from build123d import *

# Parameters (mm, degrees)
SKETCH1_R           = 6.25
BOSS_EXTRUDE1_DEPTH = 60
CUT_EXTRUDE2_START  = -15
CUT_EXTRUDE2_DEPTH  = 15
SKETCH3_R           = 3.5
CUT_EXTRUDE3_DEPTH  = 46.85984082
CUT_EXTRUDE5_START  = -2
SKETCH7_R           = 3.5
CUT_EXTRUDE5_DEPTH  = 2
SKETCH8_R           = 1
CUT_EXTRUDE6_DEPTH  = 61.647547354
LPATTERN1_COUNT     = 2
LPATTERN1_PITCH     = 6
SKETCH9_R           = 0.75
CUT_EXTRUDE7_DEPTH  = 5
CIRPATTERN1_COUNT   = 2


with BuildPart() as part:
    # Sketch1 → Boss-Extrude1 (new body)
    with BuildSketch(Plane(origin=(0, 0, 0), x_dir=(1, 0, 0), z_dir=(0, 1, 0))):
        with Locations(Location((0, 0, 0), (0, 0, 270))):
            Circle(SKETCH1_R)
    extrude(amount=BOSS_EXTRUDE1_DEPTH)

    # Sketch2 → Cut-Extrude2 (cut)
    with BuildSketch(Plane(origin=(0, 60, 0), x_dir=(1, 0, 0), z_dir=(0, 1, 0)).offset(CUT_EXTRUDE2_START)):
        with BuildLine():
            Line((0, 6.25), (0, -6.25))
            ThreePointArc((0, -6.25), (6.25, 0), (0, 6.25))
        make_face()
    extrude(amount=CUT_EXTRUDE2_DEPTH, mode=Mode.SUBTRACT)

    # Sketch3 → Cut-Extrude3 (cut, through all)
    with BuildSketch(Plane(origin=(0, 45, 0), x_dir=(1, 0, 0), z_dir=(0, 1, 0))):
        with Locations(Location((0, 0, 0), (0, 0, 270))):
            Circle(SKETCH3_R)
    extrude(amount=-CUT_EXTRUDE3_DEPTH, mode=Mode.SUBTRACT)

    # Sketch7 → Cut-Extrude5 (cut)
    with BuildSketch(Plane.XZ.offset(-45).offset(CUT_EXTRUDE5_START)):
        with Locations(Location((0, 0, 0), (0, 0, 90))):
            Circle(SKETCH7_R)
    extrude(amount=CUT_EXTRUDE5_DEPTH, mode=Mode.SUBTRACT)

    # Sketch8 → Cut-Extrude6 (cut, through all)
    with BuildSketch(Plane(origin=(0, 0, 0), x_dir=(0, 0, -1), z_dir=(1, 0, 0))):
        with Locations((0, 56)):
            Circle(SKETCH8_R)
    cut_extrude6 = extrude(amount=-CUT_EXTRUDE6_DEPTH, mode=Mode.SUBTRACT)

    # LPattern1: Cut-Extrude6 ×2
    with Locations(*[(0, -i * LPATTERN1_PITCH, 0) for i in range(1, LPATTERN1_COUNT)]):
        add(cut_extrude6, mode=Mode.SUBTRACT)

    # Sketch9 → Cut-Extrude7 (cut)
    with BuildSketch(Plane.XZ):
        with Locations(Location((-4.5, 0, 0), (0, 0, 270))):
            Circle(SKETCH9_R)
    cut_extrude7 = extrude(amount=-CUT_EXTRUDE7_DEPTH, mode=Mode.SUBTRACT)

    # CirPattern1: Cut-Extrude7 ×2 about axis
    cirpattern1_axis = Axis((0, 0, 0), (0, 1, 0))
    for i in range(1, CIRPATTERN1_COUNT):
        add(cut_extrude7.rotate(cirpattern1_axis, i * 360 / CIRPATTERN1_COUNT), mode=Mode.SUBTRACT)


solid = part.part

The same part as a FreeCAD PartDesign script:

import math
import FreeCAD as App
import Part
import Sketcher

V = App.Vector
Q = App.Units.Quantity

doc = App.newDocument("Part")
body = doc.addObject("PartDesign::Body", "Body")

# Sketch on XZ plane
sketch1 = body.newObject("Sketcher::SketchObject", "Sketch")
sketch1.AttachmentSupport = (doc.getObject("XZ_Plane"), [""])
sketch1.MapMode = "FlatFace"
sketch1.addGeometry(Part.Circle(V(0, 0, 0), V(0, 0, 1), 6), False)
sketch1.addConstraint([
    Sketcher.Constraint("Coincident", 0, 3, -1, 1),
    Sketcher.Constraint("Diameter", 0, Q("12.5 mm")),
])
pad1 = body.newObject("PartDesign::Pad", "Pad")
pad1.Profile = sketch1
pad1.Length = 60
pad1.Reversed = True

# Sketch on XZ plane
sketch2 = body.newObject("Sketcher::SketchObject", "Sketch001")
sketch2.AttachmentSupport = (doc.getObject("XZ_Plane"), [""])
sketch2.MapMode = "FlatFace"
sketch2.AttachmentOffset = App.Placement(V(0, 0, -45), App.Rotation())
sketch2.addGeometry([
    Part.LineSegment(V(0, -6, 0), V(0, 6, 0)),
    Part.ArcOfCircle(Part.Circle(V(0, 0, 0), V(0, 0, 1), 6), math.radians(-90), math.radians(90)),
], False)
sketch2.addConstraint([
    Sketcher.Constraint("Coincident", 0, 1, 1, 1),
    Sketcher.Constraint("Coincident", 1, 2, 0, 2),
    Sketcher.Constraint("Vertical", 0),
    Sketcher.Constraint("Coincident", 1, 3, -1, 1),
    Sketcher.Constraint("PointOnObject", 0, 1, -2),
    Sketcher.Constraint("Radius", 1, Q("6.25 mm")),
])
pocket1 = body.newObject("PartDesign::Pocket", "Pocket")
pocket1.Profile = sketch2
pocket1.Length = 15

# Sketch on XZ plane
sketch3 = body.newObject("Sketcher::SketchObject", "Sketch002")
sketch3.AttachmentSupport = (doc.getObject("XZ_Plane"), [""])
sketch3.MapMode = "FlatFace"
sketch3.AttachmentOffset = App.Placement(V(0, 0, -45), App.Rotation())
sketch3.addGeometry(Part.Circle(V(0, 0, 0), V(0, 0, 1), 3.5), False)
sketch3.addConstraint([
    Sketcher.Constraint("Coincident", 0, 3, -1, 1),
    Sketcher.Constraint("Diameter", 0, Q("7 mm")),
])
pocket2 = body.newObject("PartDesign::Pocket", "Pocket001")
pocket2.Profile = sketch3
pocket2.Type = "ThroughAll"
pocket2.Reversed = True

# Sketch on XZ plane
sketch4 = body.newObject("Sketcher::SketchObject", "Sketch003")
sketch4.AttachmentSupport = (doc.getObject("XZ_Plane"), [""])
sketch4.MapMode = "FlatFace"
sketch4.AttachmentOffset = App.Placement(V(0, 0, -47), App.Rotation())
sketch4.addGeometry(Part.Circle(V(0, 0, 0), V(0, 0, 1), 3.5), False)
sketch4.addConstraint([
    Sketcher.Constraint("Coincident", 0, 3, -1, 1),
    Sketcher.Constraint("Diameter", 0, Q("7 mm")),
])
pocket3 = body.newObject("PartDesign::Pocket", "Pocket002")
pocket3.Profile = sketch4
pocket3.Length = 2
pocket3.Reversed = True

# Sketch on YZ plane
sketch5 = body.newObject("Sketcher::SketchObject", "Sketch004")
sketch5.AttachmentSupport = (doc.getObject("YZ_Plane"), [""])
sketch5.MapMode = "FlatFace"
sketch5.addGeometry(Part.Circle(V(56, 0, 0), V(0, 0, 1), 1), False)
sketch5.addConstraint([
    Sketcher.Constraint("PointOnObject", 0, 3, -1),
    Sketcher.Constraint("Diameter", 0, Q("2 mm")),
    Sketcher.Constraint("DistanceX", -1, 1, 0, 3, Q("56 mm")),
])
pocket4 = body.newObject("PartDesign::Pocket", "Pocket003")
pocket4.Profile = sketch5
pocket4.Type = "ThroughAll"
doc.recompute()

linearpattern = body.newObject("PartDesign::LinearPattern", "LinearPattern")
linearpattern.Originals = [pocket4]
linearpattern.Direction = (doc.getObject("Y_Axis"), [""])
linearpattern.Mode = "offset"
linearpattern.Offset = 6
linearpattern.Occurrences = 2
linearpattern.Reversed = True
body.Tip = linearpattern

# Sketch on XZ plane
sketch6 = body.newObject("Sketcher::SketchObject", "Sketch005")
sketch6.AttachmentSupport = (doc.getObject("XZ_Plane"), [""])
sketch6.MapMode = "FlatFace"
sketch6.addGeometry(Part.Circle(V(-4.5, 0, 0), V(0, 0, 1), 0.8), False)
sketch6.addConstraint([
    Sketcher.Constraint("PointOnObject", 0, 3, -1),
    Sketcher.Constraint("Diameter", 0, Q("1.5 mm")),
    Sketcher.Constraint("DistanceX", 0, 3, -1, 1, Q("4.5 mm")),
])
pocket5 = body.newObject("PartDesign::Pocket", "Pocket004")
pocket5.Profile = sketch6
pocket5.Length = 5
doc.recompute()

polarpattern = body.newObject("PartDesign::PolarPattern", "PolarPattern")
polarpattern.Originals = [pocket5]
polarpattern.Axis = (doc.getObject("Y_Axis"), [""])
polarpattern.Angle = 360
polarpattern.Occurrences = 2
body.Tip = polarpattern

doc.recompute()
